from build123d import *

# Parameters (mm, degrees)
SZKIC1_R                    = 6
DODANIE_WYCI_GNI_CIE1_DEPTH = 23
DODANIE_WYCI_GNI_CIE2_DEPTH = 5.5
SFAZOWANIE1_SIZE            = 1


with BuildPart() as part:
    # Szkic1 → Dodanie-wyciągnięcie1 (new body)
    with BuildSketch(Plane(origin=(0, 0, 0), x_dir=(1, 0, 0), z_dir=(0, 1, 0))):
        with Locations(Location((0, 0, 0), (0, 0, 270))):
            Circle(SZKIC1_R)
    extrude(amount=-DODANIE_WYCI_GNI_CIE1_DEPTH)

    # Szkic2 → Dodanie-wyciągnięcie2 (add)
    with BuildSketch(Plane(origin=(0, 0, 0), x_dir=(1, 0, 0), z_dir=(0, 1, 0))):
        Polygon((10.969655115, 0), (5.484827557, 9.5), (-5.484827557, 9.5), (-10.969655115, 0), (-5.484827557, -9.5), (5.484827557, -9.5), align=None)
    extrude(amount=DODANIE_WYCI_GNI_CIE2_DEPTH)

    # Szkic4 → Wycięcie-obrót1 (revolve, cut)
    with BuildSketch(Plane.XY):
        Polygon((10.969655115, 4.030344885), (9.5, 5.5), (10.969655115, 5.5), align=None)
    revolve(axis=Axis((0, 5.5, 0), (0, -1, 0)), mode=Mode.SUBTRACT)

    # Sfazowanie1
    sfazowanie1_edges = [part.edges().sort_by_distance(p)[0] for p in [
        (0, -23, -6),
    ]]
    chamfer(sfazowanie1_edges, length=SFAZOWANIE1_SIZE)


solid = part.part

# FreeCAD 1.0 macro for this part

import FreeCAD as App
import Part
import Sketcher

V = App.Vector
Q = App.Units.Quantity


def edges_at(feature, points):
    """Names of the edges that pass closest to the given points."""
    edges = feature.Shape.Edges
    near = lambda p: min(range(len(edges)), key=lambda i: edges[i].distToShape(Part.Vertex(*p))[0])
    return sorted({f"Edge{near(p) + 1}" for p in points})


def add_polygon(sketch, points):
    """Adds a closed chain of lines whose ends are joined by coincident constraints."""
    first, n = sketch.GeometryCount, len(points)
    for a, b in zip(points, points[1:] + points[:1]):
        sketch.addGeometry(Part.LineSegment(App.Vector(*a, 0), App.Vector(*b, 0)), False)
    for i in range(n):
        sketch.addConstraint(Sketcher.Constraint("Coincident", first + i, 2, first + (i + 1) % n, 1))

doc = App.newDocument("Part")
body = doc.addObject("PartDesign::Body", "Body")

sketch1 = doc.addObject("Sketcher::SketchObject", "Sketch")
body.addObject(sketch1)
sketch1.AttachmentSupport = (doc.XZ_Plane, [""])
sketch1.MapMode = "FlatFace"
sketch1.addGeometry(Part.Circle(V(0, 0, 0), V(0, 0, 1), 6), False)
sketch1.addConstraint(Sketcher.Constraint("Coincident", 0, 3, -1, 1))
sketch1.addConstraint(Sketcher.Constraint("Diameter", 0, 12.0))
pad1 = doc.addObject("PartDesign::Pad", "Pad")
body.addObject(pad1)
pad1.Profile = sketch1
pad1.Length = 23

sketch2 = doc.addObject("Sketcher::SketchObject", "Sketch001")
body.addObject(sketch2)
sketch2.AttachmentSupport = (doc.XZ_Plane, [""])
sketch2.MapMode = "FlatFace"
add_polygon(sketch2, [(11, 0), (5, -10), (-5, -10), (-11, 0), (-5, 10), (5, 10)])
sketch2.addConstraint(Sketcher.Constraint("Horizontal", 1))
sketch2.addConstraint(Sketcher.Constraint("Horizontal", 4))
sketch2.addConstraint(Sketcher.Constraint("Symmetric", 0, 2, 3, 2, -1, 1))
sketch2.addConstraint(Sketcher.Constraint("Symmetric", 2, 2, 5, 2, -1, 1))
sketch2.addConstraint(Sketcher.Constraint("PointOnObject", 2, 2, -1))
sketch2.addConstraint(Sketcher.Constraint("Parallel", 2, 5))
sketch2.addConstraint(Sketcher.Constraint("Vertical", 1, 2, 3, 2))
sketch2.addConstraint(Sketcher.Constraint("Angle", 0, Q("-120 deg")))
sketch2.addConstraint(Sketcher.Constraint("DistanceY", 1, 2, 3, 2, 19.0))
sketch2.addConstraint(Sketcher.Constraint("DistanceX", 1, 2, 1, 1, 10.969655))
pad2 = doc.addObject("PartDesign::Pad", "Pad001")
body.addObject(pad2)
pad2.Profile = sketch2
pad2.Length = 5.5
pad2.Reversed = True

sketch3 = doc.addObject("Sketcher::SketchObject", "Sketch002")
body.addObject(sketch3)
sketch3.AttachmentSupport = (doc.XY_Plane, [""])
sketch3.MapMode = "FlatFace"
add_polygon(sketch3, [(9.5, 5.5), (11, 4), (11, 5.5)])
sketch3.addConstraint(Sketcher.Constraint("Vertical", 1))
sketch3.addConstraint(Sketcher.Constraint("Horizontal", 2))
sketch3.addConstraint(Sketcher.Constraint("Equal", 2, 1))
sketch3.addConstraint(Sketcher.Constraint("DistanceY", -1, 1, 1, 2, 5.5))
sketch3.addConstraint(Sketcher.Constraint("DistanceX", -1, 1, 2, 2, 9.5))
sketch3.addConstraint(Sketcher.Constraint("DistanceX", 2, 2, 2, 1, 1.469655))
groove = doc.addObject("PartDesign::Groove", "Groove")
body.addObject(groove)
groove.Profile = sketch3
groove.ReferenceAxis = (sketch3, ["V_Axis"])
groove.Angle = 360
doc.recompute()

chamfer = doc.addObject("PartDesign::Chamfer", "Chamfer")
body.addObject(chamfer)
chamfer.Base = (groove, edges_at(groove, [(0, -23, -6)]))
chamfer.Size = 1

doc.recompute()
